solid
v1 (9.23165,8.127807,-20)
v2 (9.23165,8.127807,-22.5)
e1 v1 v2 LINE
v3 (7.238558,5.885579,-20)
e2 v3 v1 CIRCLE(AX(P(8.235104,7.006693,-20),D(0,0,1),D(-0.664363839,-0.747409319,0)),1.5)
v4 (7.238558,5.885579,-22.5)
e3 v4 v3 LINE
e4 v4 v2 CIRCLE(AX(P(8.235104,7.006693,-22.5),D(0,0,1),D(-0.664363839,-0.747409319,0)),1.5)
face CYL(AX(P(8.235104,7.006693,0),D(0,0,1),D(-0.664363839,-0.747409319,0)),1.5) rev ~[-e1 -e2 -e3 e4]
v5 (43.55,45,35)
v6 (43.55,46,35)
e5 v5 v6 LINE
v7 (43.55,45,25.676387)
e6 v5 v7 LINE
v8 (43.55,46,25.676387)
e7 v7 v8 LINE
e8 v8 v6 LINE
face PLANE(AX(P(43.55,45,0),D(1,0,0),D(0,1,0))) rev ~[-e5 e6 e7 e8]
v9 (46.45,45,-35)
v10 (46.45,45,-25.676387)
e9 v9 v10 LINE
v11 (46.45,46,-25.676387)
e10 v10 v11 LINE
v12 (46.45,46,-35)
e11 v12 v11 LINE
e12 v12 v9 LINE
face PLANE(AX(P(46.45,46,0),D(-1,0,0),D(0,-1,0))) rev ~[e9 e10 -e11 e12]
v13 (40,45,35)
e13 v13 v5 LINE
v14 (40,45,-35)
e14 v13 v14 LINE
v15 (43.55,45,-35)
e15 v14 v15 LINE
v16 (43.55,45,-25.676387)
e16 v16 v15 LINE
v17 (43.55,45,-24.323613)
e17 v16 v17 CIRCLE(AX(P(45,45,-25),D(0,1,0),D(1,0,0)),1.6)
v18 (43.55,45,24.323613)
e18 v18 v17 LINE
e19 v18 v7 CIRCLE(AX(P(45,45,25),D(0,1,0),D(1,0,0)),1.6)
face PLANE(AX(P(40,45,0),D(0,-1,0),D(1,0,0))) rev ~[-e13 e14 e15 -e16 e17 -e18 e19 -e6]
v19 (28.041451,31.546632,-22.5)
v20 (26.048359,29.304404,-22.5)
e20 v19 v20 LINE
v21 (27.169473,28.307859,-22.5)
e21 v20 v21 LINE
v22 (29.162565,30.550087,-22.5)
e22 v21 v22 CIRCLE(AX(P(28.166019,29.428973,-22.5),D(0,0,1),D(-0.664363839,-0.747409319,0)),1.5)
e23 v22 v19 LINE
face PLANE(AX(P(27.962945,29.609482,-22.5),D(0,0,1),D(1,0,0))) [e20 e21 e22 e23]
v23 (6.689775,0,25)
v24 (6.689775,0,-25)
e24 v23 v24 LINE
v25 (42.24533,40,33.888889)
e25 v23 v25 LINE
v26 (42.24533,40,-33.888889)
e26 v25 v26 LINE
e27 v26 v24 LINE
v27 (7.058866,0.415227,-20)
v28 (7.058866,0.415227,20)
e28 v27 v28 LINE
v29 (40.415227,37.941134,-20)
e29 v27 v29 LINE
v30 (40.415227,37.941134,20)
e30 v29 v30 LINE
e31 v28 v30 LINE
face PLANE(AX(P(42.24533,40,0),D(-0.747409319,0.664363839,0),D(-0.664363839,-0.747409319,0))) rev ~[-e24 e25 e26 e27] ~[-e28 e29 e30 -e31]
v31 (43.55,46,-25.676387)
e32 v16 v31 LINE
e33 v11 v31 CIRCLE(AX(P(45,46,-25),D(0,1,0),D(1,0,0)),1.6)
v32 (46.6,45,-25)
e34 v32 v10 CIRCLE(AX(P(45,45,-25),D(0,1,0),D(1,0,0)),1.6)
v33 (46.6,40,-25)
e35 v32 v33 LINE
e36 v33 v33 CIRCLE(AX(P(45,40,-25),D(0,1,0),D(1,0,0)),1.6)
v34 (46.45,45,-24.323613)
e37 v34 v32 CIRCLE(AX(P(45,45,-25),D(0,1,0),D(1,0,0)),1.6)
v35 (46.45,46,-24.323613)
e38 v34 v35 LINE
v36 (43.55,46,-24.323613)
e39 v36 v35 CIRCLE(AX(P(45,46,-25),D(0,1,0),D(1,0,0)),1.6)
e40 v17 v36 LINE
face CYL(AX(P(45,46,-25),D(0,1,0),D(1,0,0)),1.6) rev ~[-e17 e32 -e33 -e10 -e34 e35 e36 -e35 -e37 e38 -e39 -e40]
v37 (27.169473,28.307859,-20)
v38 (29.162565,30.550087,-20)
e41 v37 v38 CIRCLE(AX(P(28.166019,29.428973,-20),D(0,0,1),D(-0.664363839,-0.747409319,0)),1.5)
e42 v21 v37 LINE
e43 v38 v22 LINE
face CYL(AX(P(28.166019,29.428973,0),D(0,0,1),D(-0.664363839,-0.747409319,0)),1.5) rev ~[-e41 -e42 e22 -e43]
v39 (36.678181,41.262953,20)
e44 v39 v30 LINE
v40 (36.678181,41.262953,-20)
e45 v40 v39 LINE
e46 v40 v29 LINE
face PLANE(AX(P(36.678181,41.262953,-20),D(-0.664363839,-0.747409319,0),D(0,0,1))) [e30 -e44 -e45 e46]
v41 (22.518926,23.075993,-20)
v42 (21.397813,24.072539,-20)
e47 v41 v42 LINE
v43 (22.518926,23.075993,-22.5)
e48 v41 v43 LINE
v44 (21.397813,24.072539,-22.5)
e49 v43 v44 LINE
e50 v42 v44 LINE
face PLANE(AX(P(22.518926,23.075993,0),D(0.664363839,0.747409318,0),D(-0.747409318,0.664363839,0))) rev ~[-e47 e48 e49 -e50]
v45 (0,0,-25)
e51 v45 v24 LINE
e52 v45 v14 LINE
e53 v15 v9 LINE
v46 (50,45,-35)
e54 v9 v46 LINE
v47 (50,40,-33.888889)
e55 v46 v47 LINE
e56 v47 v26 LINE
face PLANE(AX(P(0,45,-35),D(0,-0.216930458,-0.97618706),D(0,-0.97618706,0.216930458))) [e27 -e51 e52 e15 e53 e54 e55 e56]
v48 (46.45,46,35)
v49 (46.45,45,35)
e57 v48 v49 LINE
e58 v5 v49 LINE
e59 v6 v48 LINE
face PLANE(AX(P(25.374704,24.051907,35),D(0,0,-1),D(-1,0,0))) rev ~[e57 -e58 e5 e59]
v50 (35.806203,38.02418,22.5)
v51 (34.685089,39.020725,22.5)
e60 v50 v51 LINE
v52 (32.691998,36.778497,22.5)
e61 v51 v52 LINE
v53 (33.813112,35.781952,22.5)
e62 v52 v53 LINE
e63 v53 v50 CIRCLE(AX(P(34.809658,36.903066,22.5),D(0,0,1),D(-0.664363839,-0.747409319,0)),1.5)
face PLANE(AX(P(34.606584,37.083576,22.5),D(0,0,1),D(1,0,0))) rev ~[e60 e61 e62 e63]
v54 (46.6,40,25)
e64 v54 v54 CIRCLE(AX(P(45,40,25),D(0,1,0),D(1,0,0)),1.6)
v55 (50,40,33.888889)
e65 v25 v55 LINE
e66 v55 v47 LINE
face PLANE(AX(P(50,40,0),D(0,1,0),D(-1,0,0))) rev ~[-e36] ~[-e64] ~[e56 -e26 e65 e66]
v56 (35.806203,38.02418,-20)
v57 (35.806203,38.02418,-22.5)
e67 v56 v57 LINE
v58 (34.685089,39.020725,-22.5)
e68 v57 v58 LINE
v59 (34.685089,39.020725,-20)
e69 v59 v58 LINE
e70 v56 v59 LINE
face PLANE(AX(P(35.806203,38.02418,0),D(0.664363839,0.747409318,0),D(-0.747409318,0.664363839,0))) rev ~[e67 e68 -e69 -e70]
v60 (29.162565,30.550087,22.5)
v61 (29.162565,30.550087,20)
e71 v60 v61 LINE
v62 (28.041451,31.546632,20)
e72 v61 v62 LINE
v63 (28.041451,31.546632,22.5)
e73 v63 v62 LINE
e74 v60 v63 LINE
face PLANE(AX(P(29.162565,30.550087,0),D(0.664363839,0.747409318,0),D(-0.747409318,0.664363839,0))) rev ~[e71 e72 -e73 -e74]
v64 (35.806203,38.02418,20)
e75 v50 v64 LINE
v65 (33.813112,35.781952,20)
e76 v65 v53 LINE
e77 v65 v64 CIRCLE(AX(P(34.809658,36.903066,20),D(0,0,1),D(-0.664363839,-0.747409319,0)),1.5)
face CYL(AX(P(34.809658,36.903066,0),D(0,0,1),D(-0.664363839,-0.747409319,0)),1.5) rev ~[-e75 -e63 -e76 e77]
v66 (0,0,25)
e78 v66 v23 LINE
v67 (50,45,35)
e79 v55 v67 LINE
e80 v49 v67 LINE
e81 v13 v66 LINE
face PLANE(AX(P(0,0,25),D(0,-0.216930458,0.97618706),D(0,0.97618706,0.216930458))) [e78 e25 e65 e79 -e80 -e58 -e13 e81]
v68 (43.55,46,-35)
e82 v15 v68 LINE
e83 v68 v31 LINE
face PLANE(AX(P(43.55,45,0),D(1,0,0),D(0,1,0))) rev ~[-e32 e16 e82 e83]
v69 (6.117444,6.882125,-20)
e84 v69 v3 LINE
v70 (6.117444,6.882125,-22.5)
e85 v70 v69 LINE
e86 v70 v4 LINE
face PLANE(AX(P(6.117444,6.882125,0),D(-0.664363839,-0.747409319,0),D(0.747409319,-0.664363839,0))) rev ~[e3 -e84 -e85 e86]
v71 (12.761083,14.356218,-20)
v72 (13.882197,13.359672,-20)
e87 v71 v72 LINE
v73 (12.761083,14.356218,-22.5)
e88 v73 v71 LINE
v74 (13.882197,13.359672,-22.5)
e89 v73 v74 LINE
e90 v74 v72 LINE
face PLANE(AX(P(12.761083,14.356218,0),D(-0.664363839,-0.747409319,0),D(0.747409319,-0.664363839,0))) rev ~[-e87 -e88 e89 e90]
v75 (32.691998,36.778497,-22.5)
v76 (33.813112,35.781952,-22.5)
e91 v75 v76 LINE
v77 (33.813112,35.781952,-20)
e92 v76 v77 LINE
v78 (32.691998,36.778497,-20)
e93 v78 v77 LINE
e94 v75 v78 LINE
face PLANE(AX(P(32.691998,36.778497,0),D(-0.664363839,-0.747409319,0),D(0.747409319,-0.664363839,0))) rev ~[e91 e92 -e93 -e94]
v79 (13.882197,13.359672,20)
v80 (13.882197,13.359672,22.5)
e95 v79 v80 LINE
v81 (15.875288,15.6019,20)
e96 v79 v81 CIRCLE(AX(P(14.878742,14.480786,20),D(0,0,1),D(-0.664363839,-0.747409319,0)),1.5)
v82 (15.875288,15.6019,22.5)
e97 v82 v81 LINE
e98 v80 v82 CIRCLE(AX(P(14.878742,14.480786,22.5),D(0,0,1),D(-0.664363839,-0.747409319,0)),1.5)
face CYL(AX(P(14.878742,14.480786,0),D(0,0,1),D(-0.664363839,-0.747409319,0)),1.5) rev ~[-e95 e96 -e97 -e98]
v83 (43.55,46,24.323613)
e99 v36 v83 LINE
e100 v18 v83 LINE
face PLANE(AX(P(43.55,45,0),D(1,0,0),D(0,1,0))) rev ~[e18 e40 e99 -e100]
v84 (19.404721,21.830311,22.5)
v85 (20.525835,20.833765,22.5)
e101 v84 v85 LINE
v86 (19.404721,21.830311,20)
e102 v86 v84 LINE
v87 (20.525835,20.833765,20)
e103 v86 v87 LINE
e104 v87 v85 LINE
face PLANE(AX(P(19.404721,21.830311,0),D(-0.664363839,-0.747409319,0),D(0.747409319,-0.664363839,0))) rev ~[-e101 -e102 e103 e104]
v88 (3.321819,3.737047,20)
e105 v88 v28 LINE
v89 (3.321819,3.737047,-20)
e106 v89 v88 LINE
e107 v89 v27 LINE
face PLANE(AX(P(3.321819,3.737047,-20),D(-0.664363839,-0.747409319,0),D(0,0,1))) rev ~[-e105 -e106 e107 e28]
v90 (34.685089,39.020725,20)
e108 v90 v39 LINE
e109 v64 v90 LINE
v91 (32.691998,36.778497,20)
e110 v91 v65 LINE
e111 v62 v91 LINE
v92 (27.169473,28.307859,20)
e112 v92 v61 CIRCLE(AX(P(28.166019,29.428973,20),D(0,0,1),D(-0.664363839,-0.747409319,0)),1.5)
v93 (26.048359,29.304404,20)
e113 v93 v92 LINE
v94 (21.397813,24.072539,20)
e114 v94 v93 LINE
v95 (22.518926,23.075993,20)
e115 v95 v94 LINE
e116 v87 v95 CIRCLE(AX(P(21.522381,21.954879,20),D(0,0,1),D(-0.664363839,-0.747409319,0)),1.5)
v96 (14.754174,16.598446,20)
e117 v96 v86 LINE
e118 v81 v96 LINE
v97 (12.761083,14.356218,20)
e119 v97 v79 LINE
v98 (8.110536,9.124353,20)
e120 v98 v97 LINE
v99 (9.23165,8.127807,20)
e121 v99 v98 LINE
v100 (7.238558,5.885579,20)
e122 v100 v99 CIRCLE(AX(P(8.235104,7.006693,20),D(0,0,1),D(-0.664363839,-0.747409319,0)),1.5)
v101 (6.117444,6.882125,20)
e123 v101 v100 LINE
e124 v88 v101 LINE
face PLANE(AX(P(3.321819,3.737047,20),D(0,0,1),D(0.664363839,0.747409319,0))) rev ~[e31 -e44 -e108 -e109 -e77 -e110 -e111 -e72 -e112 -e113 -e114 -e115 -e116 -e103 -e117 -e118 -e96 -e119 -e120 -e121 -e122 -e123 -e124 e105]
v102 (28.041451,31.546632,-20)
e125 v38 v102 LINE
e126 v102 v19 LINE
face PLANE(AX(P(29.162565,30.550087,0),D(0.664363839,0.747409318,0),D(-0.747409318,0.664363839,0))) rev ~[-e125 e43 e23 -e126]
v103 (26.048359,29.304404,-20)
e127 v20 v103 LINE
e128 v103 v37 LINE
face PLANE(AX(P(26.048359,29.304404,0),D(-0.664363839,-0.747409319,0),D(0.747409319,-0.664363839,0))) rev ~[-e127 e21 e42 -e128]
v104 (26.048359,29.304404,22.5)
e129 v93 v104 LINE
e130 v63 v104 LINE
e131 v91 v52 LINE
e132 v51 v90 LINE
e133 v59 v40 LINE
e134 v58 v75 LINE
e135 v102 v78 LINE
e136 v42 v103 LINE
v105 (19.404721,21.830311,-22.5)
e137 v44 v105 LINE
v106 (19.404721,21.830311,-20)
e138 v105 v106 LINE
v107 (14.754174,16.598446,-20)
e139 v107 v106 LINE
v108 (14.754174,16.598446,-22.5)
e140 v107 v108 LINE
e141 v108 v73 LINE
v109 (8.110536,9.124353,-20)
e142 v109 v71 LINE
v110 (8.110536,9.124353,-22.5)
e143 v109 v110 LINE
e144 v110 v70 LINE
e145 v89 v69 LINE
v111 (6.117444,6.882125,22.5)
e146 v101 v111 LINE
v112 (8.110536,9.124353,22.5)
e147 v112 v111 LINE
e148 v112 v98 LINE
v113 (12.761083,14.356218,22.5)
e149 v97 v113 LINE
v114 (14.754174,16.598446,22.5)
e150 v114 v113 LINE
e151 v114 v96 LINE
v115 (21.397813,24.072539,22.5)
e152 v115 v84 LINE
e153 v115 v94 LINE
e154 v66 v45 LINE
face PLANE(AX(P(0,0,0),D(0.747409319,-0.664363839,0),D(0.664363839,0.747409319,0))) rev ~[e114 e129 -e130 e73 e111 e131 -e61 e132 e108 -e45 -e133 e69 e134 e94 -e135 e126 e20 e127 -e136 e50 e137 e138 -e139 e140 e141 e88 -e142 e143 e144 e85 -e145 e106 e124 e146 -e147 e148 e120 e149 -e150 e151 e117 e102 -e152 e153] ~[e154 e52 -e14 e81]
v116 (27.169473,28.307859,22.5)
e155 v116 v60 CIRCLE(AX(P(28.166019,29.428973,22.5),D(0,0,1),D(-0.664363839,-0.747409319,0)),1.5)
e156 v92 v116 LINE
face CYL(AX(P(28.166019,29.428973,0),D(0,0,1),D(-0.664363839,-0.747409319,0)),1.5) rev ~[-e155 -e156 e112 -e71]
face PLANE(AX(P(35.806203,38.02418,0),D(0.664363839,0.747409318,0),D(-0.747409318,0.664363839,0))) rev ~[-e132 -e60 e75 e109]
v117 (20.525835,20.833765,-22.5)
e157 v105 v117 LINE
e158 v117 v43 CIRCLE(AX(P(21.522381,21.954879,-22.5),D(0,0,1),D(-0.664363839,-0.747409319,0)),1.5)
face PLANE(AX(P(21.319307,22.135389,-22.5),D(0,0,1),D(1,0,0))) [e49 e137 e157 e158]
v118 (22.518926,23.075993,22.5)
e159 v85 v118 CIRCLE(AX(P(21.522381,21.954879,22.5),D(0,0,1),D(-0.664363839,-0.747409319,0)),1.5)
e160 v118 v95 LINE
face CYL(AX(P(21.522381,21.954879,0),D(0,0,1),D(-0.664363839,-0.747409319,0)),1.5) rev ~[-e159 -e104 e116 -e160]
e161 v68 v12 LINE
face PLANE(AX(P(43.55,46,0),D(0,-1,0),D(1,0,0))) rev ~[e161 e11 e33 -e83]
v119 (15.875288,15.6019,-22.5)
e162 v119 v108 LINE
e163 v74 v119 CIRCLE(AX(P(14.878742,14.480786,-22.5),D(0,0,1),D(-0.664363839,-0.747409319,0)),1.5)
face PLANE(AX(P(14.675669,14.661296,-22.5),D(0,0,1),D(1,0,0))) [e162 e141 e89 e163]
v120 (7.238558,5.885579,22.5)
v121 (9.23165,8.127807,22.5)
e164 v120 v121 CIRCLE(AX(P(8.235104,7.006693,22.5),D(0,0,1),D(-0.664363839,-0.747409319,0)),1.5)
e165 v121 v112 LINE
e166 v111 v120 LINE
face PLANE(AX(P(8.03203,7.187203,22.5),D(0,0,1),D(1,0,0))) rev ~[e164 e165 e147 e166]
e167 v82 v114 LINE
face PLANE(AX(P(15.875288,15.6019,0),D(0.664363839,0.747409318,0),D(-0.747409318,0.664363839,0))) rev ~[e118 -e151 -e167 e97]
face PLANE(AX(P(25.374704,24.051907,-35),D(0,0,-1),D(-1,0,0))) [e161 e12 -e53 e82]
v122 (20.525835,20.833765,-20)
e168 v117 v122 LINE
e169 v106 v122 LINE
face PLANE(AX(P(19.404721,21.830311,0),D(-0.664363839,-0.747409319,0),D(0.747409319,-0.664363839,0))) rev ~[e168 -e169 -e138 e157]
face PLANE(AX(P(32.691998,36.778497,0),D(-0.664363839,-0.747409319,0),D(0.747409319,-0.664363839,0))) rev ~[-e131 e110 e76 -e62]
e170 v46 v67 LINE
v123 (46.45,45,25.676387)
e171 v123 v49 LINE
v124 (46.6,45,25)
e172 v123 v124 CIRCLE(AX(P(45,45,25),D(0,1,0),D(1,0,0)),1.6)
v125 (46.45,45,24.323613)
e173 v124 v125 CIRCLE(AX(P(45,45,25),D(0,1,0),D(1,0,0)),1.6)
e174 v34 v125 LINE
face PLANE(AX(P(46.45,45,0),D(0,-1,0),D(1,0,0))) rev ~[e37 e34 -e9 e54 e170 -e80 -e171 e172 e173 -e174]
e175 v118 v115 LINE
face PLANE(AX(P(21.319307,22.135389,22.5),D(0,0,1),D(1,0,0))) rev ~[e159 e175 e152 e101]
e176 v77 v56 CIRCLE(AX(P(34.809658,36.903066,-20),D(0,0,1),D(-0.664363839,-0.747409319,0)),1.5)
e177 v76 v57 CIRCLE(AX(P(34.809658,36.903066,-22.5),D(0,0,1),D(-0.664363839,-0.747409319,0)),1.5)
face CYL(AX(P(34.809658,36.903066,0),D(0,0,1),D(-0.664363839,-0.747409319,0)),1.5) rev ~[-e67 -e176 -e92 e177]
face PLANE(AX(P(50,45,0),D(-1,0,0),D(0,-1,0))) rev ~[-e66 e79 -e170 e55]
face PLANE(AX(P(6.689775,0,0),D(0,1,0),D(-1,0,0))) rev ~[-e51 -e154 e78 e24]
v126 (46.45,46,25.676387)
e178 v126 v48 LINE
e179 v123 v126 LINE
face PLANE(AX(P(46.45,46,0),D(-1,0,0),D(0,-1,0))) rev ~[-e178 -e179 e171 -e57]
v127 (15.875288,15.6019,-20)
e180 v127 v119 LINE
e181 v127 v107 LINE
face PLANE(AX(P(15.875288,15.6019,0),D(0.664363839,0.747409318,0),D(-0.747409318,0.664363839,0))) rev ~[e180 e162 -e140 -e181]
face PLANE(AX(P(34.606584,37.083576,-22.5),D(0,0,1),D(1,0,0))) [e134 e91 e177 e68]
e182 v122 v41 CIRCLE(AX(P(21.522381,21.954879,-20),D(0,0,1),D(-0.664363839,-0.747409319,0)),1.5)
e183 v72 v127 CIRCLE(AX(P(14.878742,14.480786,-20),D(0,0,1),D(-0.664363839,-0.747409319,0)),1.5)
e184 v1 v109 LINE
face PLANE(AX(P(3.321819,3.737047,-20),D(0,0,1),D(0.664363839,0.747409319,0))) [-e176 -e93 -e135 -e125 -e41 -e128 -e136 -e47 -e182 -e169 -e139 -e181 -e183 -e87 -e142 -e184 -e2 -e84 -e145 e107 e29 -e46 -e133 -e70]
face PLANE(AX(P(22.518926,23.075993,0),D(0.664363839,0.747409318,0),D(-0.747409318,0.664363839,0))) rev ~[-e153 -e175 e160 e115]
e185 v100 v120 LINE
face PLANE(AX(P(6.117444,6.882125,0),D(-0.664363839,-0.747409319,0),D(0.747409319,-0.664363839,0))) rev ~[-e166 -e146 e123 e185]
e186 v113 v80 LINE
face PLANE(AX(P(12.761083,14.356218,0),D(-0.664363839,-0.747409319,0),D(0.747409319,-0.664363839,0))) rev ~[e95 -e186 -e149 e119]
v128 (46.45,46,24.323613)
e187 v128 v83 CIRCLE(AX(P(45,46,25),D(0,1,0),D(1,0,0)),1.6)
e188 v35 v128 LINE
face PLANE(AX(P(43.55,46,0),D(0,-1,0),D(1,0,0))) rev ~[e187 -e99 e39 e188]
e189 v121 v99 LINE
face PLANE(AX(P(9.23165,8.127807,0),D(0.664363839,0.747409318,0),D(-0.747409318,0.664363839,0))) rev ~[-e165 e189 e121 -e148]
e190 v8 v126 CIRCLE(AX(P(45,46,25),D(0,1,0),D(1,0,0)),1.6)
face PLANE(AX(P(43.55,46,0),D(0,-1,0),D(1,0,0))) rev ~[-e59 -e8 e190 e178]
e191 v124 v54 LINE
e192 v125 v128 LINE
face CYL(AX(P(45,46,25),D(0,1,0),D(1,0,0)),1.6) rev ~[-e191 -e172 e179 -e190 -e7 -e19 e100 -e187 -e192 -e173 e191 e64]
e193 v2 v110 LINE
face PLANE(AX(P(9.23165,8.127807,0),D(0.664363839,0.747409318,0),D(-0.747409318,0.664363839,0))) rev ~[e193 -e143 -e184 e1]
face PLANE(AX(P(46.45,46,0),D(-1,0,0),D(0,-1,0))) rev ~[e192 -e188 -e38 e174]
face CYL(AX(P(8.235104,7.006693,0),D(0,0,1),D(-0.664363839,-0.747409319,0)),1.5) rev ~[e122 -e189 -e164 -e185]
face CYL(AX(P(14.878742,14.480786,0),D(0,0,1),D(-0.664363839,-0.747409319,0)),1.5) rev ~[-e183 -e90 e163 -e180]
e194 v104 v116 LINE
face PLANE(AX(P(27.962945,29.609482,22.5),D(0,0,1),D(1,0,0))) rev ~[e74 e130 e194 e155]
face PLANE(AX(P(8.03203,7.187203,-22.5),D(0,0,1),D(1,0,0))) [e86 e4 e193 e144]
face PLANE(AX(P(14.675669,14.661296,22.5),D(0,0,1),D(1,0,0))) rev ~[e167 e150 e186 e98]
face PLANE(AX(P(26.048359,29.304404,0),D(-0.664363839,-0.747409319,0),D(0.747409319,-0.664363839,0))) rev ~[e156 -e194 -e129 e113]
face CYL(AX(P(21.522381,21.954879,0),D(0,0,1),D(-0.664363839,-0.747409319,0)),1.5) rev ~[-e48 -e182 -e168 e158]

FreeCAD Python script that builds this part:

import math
import FreeCAD as App
import Part
import Sketcher

V = App.Vector


def add_polygon(sketch, points):
    """Adds a closed chain of lines whose ends are joined by coincident constraints."""
    first, n = sketch.GeometryCount, len(points)
    for a, b in zip(points, points[1:] + points[:1]):
        sketch.addGeometry(Part.LineSegment(App.Vector(*a, 0), App.Vector(*b, 0)), False)
    for i in range(n):
        sketch.addConstraint(Sketcher.Constraint("Coincident", first + i, 2, first + (i + 1) % n, 1))

doc = App.newDocument("Part")
body = doc.addObject("PartDesign::Body", "Body")

sketch1 = body.newObject("Sketcher::SketchObject", "Sketch")
sketch1.AttachmentSupport = (doc.getObject("XY_Plane"), [""])
sketch1.MapMode = "FlatFace"
add_polygon(sketch1, [(50, 40), (50, 45), (46.5, 45), (46.5, 46), (43.5, 46), (43.5, 45), (40, 45), (0, 0), (6.7, 0), (42.2, 40)])
sketch1.addConstraint([
    Sketcher.Constraint("Vertical", 0),
    Sketcher.Constraint("Horizontal", 1),
    Sketcher.Constraint("Vertical", 2),
    Sketcher.Constraint("Horizontal", 3),
    Sketcher.Constraint("Vertical", 4),
    Sketcher.Constraint("Horizontal", 5),
    Sketcher.Constraint("Horizontal", 7),
    Sketcher.Constraint("Horizontal", 9),
    Sketcher.Constraint("Coincident", 6, 2, -1, 1),
    Sketcher.Constraint("Parallel", 6, 8),
    Sketcher.Constraint("Horizontal", 1, 2, 4, 2),
    Sketcher.Constraint("Equal", 1, 5),
    Sketcher.Constraint("DistanceY", 0, 1, 0, 2, 5.0),
    Sketcher.Constraint("DistanceY", 2, 1, 2, 2, 1.0),
    Sketcher.Constraint("DistanceX", 3, 2, 3, 1, 2.9),
    Sketcher.Constraint("DistanceX", -1, 1, 0, 2, 50.0),
    Sketcher.Constraint("DistanceY", -1, 1, 0, 2, 45.0),
    Sketcher.Constraint("DistanceX", -1, 1, 5, 2, 40.0),
    Sketcher.Constraint("DistanceX", 9, 1, 9, 2, 7.75467),
])
pad1 = body.newObject("PartDesign::Pad", "Pad")
pad1.Profile = sketch1
pad1.Length = 70
pad1.Midplane = True

sketch2 = body.newObject("Sketcher::SketchObject", "Sketch001")
sketch2.AttachmentSupport = (doc.getObject("YZ_Plane"), [""])
sketch2.MapMode = "FlatFace"
add_polygon(sketch2, [(45, -35), (0, -25), (0, -35)])
add_polygon(sketch2, [(45, 35), (0, 35), (0, 25)])
sketch2.addConstraint([
    Sketcher.Constraint("Vertical", 1),
    Sketcher.Constraint("Horizontal", 2),
    Sketcher.Constraint("Horizontal", 3),
    Sketcher.Constraint("Vertical", 4),
    Sketcher.Constraint("Symmetric", 1, 2, 3, 2, -1, 1),
    Sketcher.Constraint("Symmetric", 0, 2, 4, 2, -1),
    Sketcher.Constraint("Vertical", 2, 2, 5, 2),
    Sketcher.Constraint("DistanceX", 2, 1, 2, 2, 45.0),
    Sketcher.Constraint("DistanceY", 1, 2, 1, 1, 10.0),
    Sketcher.Constraint("DistanceY", 0, 2, -1, 1, 25.0),
])
pocket1 = body.newObject("PartDesign::Pocket", "Pocket")
pocket1.Profile = sketch2
pocket1.Type = "ThroughAll"
pocket1.Midplane = True

sketch3 = body.newObject("Sketcher::SketchObject", "Sketch002")
sketch3.Placement = App.Placement(V(0, 0, 0), App.Rotation(V(0, 0, 1), V(0.664363839, 0.747409319, 0), V(-0.747409319, 0.664363839, 0), "ZXY"))
add_polygon(sketch3, [(-20, 55), (-20, 5), (20, 5), (20, 55)])
sketch3.addConstraint([
    Sketcher.Constraint("Vertical", 0),
    Sketcher.Constraint("Horizontal", 1),
    Sketcher.Constraint("Vertical", 2),
    Sketcher.Constraint("Horizontal", 3),
    Sketcher.Constraint("DistanceX", 1, 1, 1, 2, 40.0),
    Sketcher.Constraint("DistanceX", 0, 2, -1, 1, 20.0),
    Sketcher.Constraint("DistanceY", -1, 1, 0, 2, 5.0),
    Sketcher.Constraint("DistanceY", 0, 2, 0, 1, 50.207973),
])
pocket2 = body.newObject("PartDesign::Pocket", "Pocket001")
pocket2.Profile = sketch3
pocket2.Type = "ThroughAll"

sketch4 = body.newObject("Sketcher::SketchObject", "Sketch003")
sketch4.AttachmentSupport = (doc.getObject("XZ_Plane"), [""])
sketch4.MapMode = "FlatFace"
sketch4.AttachmentOffset = App.Placement(V(0, 0, -46), App.Rotation())
sketch4.addGeometry([
    Part.Circle(V(45, -25, 0), V(0, 0, 1), 1.6),
    Part.Circle(V(45, 25, 0), V(0, 0, 1), 1.6),
], False)
sketch4.addConstraint([
    Sketcher.Constraint("Equal", 0, 1),
    Sketcher.Constraint("Symmetric", 0, 3, 1, 3, -1),
    Sketcher.Constraint("Diameter", 0, 3.2),
    Sketcher.Constraint("DistanceX", -1, 1, 0, 3, 45.0),
    Sketcher.Constraint("DistanceY", 0, 3, -1, 1, 25.0),
])
pocket3 = body.newObject("PartDesign::Pocket", "Pocket002")
pocket3.Profile = sketch4
pocket3.Type = "ThroughAll"
pocket3.Midplane = True

sketch5 = body.newObject("Sketcher::SketchObject", "Sketch004")
sketch5.AttachmentSupport = (doc.getObject("XY_Plane"), [""])
sketch5.MapMode = "FlatFace"
sketch5.addGeometry([
    Part.LineSegment(V(34.7, 39, 0), V(32.7, 36.8, 0)),
    Part.LineSegment(V(32.7, 36.8, 0), V(33.8, 35.8, 0)),
    Part.ArcOfCircle(Part.Circle(V(34.8, 36.9, 0), V(0, 0, 1), 1.5), math.radians(-132), math.radians(48)),
    Part.LineSegment(V(35.8, 38, 0), V(34.7, 39, 0)),
], False)
sketch5.addConstraint([
    Sketcher.Constraint("Coincident", 0, 2, 1, 1),
    Sketcher.Constraint("Tangent", 1, 2, 2, 1),
    Sketcher.Constraint("Tangent", 2, 2, 3, 1),
    Sketcher.Constraint("Coincident", 3, 2, 0, 1),
    Sketcher.Constraint("Perpendicular", 0, 1),
    Sketcher.Constraint("Parallel", 1, 3),
    Sketcher.Constraint("Radius", 2, 1.5),
    Sketcher.Constraint("Distance", 1, 1.5),
    Sketcher.Constraint("DistanceX", -1, 1, 1, 2, 33.813112),
    Sketcher.Constraint("DistanceY", -1, 1, 1, 2, 35.781952),
    Sketcher.Constraint("DistanceY", -1, 1, 2, 2, 38.02418),
])
pocket4 = body.newObject("PartDesign::Pocket", "Pocket003")
pocket4.Profile = sketch5
pocket4.Length = 45
pocket4.Midplane = True
doc.recompute()

datumline = body.newObject("PartDesign::Line", "DatumLine")
datumline.Placement = App.Placement(V(0, 0, 0), App.Rotation(V(0, 0, 1), V(-0.664363839, -0.747409319, 0)))
linearpattern = body.newObject("PartDesign::LinearPattern", "LinearPattern")
linearpattern.Originals = [pocket4]
linearpattern.Direction = (datumline, [""])
linearpattern.Mode = "offset"
linearpattern.Offset = 10
linearpattern.Occurrences = 5
body.Tip = linearpattern

doc.recompute()
